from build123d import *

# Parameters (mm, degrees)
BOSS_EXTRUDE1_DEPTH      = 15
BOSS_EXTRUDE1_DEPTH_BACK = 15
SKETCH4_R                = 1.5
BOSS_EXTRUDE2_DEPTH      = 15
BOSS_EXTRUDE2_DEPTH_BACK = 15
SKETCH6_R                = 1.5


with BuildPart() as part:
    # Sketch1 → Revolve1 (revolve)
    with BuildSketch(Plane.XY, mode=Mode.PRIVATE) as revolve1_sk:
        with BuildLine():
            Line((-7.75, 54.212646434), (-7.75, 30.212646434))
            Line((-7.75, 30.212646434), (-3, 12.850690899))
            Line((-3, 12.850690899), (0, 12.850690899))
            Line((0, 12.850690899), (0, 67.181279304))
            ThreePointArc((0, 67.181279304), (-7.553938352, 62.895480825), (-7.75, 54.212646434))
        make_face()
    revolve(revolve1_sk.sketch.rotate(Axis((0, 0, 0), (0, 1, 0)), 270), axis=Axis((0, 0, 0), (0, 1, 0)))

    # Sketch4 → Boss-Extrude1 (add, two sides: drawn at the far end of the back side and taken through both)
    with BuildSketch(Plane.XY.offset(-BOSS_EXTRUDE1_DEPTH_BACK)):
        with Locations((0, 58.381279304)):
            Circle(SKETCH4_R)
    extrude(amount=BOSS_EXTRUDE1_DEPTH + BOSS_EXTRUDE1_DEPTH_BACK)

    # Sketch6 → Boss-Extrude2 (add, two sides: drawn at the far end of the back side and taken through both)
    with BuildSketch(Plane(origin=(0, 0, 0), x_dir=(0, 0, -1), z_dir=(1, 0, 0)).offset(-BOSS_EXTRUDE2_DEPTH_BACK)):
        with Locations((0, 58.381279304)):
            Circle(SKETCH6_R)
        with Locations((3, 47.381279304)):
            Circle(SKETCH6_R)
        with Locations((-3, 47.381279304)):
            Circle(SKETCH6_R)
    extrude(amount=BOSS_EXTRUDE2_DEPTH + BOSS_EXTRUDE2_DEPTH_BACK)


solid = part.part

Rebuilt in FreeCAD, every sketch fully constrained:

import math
import FreeCAD as App
import Part
import Sketcher
from FreeCAD import Vector
Q = App.Units.Quantity

doc = App.newDocument("Part")
body = doc.addObject("PartDesign::Body", "Body")

sketch1 = doc.addObject("Sketcher::SketchObject", "Sketch")
body.addObject(sketch1)
sketch1.AttachmentSupport = (doc.XY_Plane, [""])
sketch1.MapMode = "FlatFace"
sketch1.addGeometry(Part.LineSegment(Vector(-7.8, 54.2, 0), Vector(-7.8, 30.2, 0)), False)
sketch1.addGeometry(Part.LineSegment(Vector(-7.8, 30.2, 0), Vector(-3, 12.9, 0)), False)
sketch1.addGeometry(Part.LineSegment(Vector(-3, 12.9, 0), Vector(0, 12.9, 0)), False)
sketch1.addGeometry(Part.LineSegment(Vector(0, 12.9, 0), Vector(0, 67.2, 0)), False)
sketch1.addGeometry(Part.ArcOfCircle(Part.Circle(Vector(0, 58.4, 0), Vector(0, 0, 1), 8.8), math.radians(90), math.radians(208)), False)
sketch1.addConstraint(Sketcher.Constraint("Coincident", 0, 2, 1, 1))
sketch1.addConstraint(Sketcher.Constraint("Coincident", 1, 2, 2, 1))
sketch1.addConstraint(Sketcher.Constraint("Coincident", 2, 2, 3, 1))
sketch1.addConstraint(Sketcher.Constraint("Coincident", 3, 2, 4, 1))
sketch1.addConstraint(Sketcher.Constraint("Coincident", 4, 2, 0, 1))
sketch1.addConstraint(Sketcher.Constraint("Vertical", 0))
sketch1.addConstraint(Sketcher.Constraint("Horizontal", 2))
sketch1.addConstraint(Sketcher.Constraint("Vertical", 3))
sketch1.addConstraint(Sketcher.Constraint("PointOnObject", 4, 3, -2))
sketch1.addConstraint(Sketcher.Constraint("PointOnObject", 2, 2, -2))
sketch1.addConstraint(Sketcher.Constraint("Radius", 4, Q("8.8 mm")))
sketch1.addConstraint(Sketcher.Constraint("DistanceX", 2, 1, 2, 2, Q("3 mm")))
sketch1.addConstraint(Sketcher.Constraint("DistanceY", 0, 2, 0, 1, Q("24 mm")))
sketch1.addConstraint(Sketcher.Constraint("Distance", 1, Q("18 mm")))
sketch1.addConstraint(Sketcher.Constraint("DistanceX", 0, 2, -1, 1, Q("7.75 mm")))
sketch1.addConstraint(Sketcher.Constraint("DistanceY", -1, 1, 4, 3, Q("58.381279 mm")))
revolution = doc.addObject("PartDesign::Revolution", "Revolution")
body.addObject(revolution)
revolution.Profile = sketch1
revolution.ReferenceAxis = (sketch1, ["V_Axis"])
revolution.Angle = 360

sketch2 = doc.addObject("Sketcher::SketchObject", "Sketch001")
body.addObject(sketch2)
sketch2.AttachmentSupport = (doc.XY_Plane, [""])
sketch2.MapMode = "FlatFace"
sketch2.addGeometry(Part.Circle(Vector(0, 58.4, 0), Vector(0, 0, 1), 1.5), False)
sketch2.addConstraint(Sketcher.Constraint("PointOnObject", 0, 3, -2))
sketch2.addConstraint(Sketcher.Constraint("Diameter", 0, Q("3 mm")))
sketch2.addConstraint(Sketcher.Constraint("DistanceY", -1, 1, 0, 3, Q("58.381279 mm")))
pad1 = doc.addObject("PartDesign::Pad", "Pad")
body.addObject(pad1)
pad1.Profile = sketch2
pad1.Type = "TwoLengths"
pad1.Length = 15
pad1.Length2 = 15

sketch3 = doc.addObject("Sketcher::SketchObject", "Sketch002")
body.addObject(sketch3)
sketch3.AttachmentSupport = (doc.YZ_Plane, [""])
sketch3.MapMode = "FlatFace"
sketch3.addGeometry(Part.Circle(Vector(58.4, 0, 0), Vector(0, 0, 1), 1.5), False)
sketch3.addGeometry(Part.Circle(Vector(47.4, -3, 0), Vector(0, 0, 1), 1.5), False)
sketch3.addGeometry(Part.Circle(Vector(47.4, 3, 0), Vector(0, 0, 1), 1.5), False)
sketch3.addConstraint(Sketcher.Constraint("Equal", 0, 1))
sketch3.addConstraint(Sketcher.Constraint("Equal", 1, 2))
sketch3.addConstraint(Sketcher.Constraint("Symmetric", 1, 3, 2, 3, -1))
sketch3.addConstraint(Sketcher.Constraint("PointOnObject", 0, 3, -1))
sketch3.addConstraint(Sketcher.Constraint("Diameter", 0, Q("3 mm")))
sketch3.addConstraint(Sketcher.Constraint("DistanceY", 1, 3, -1, 1, Q("3 mm")))
sketch3.addConstraint(Sketcher.Constraint("DistanceX", 1, 3, 0, 3, Q("11 mm")))
sketch3.addConstraint(Sketcher.Constraint("DistanceX", -1, 1, 0, 3, Q("58.381279 mm")))
pad2 = doc.addObject("PartDesign::Pad", "Pad001")
body.addObject(pad2)
pad2.Profile = sketch3
pad2.Type = "TwoLengths"
pad2.Length = 15
pad2.Length2 = 15

doc.recompute()
